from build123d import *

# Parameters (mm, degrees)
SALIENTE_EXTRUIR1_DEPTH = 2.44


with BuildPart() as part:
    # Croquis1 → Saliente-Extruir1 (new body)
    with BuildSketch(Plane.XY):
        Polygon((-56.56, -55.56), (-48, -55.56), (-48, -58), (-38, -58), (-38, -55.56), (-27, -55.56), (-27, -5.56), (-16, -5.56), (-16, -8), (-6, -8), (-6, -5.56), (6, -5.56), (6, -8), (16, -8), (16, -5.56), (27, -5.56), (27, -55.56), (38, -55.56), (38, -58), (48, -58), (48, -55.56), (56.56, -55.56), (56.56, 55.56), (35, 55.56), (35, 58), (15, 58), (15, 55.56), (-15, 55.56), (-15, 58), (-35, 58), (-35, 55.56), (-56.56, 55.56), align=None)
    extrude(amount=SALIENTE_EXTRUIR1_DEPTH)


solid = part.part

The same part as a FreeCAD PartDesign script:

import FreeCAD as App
import Part
import Sketcher
from FreeCAD import Vector


def add_polygon(sketch, points):
    """Adds a closed chain of lines whose ends are joined by coincident constraints."""
    first, n = sketch.GeometryCount, len(points)
    for a, b in zip(points, points[1:] + points[:1]):
        sketch.addGeometry(Part.LineSegment(App.Vector(*a, 0), App.Vector(*b, 0)), False)
    for i in range(n):
        sketch.addConstraint(Sketcher.Constraint("Coincident", first + i, 2, first + (i + 1) % n, 1))

doc = App.newDocument("Part")
body = doc.addObject("PartDesign::Body", "Body")

sketch1 = doc.addObject("Sketcher::SketchObject", "Sketch")
body.addObject(sketch1)
sketch1.AttachmentSupport = (doc.XY_Plane, [""])
sketch1.MapMode = "FlatFace"
add_polygon(sketch1, [(-56.56, -55.56), (-48, -55.56), (-48, -58), (-38, -58), (-38, -55.56), (-27, -55.56), (-27, -5.56), (-16, -5.56), (-16, -8), (-6, -8), (-6, -5.56), (6, -5.56), (6, -8), (16, -8), (16, -5.56), (27, -5.56), (27, -55.56), (38, -55.56), (38, -58), (48, -58), (48, -55.56), (56.56, -55.56), (56.56, 55.56), (35, 55.56), (35, 58), (15, 58), (15, 55.56), (-15, 55.56), (-15, 58), (-35, 58), (-35, 55.56), (-56.56, 55.56)])
sketch1.addConstraint([
    Sketcher.Constraint("Horizontal", 0),
    Sketcher.Constraint("Vertical", 1),
    Sketcher.Constraint("Horizontal", 2),
    Sketcher.Constraint("Vertical", 3),
    Sketcher.Constraint("Horizontal", 4),
    Sketcher.Constraint("Vertical", 5),
    Sketcher.Constraint("Horizontal", 6),
    Sketcher.Constraint("Vertical", 7),
    Sketcher.Constraint("Horizontal", 8),
    Sketcher.Constraint("Vertical", 9),
    Sketcher.Constraint("Horizontal", 10),
    Sketcher.Constraint("Vertical", 11),
    Sketcher.Constraint("Horizontal", 12),
    Sketcher.Constraint("Vertical", 13),
    Sketcher.Constraint("Horizontal", 14),
    Sketcher.Constraint("Vertical", 15),
    Sketcher.Constraint("Horizontal", 16),
    Sketcher.Constraint("Vertical", 17),
    Sketcher.Constraint("Horizontal", 18),
    Sketcher.Constraint("Vertical", 19),
    Sketcher.Constraint("Horizontal", 20),
    Sketcher.Constraint("Vertical", 21),
    Sketcher.Constraint("Horizontal", 22),
    Sketcher.Constraint("Vertical", 23),
    Sketcher.Constraint("Horizontal", 24),
    Sketcher.Constraint("Vertical", 25),
    Sketcher.Constraint("Horizontal", 26),
    Sketcher.Constraint("Vertical", 27),
    Sketcher.Constraint("Horizontal", 28),
    Sketcher.Constraint("Vertical", 29),
    Sketcher.Constraint("Horizontal", 30),
    Sketcher.Constraint("Vertical", 31),
    Sketcher.Constraint("Symmetric", 20, 2, 30, 2, -1, 1),
    Sketcher.Constraint("Symmetric", 8, 2, 11, 2, -2),
    Sketcher.Constraint("Symmetric", 6, 2, 13, 2, -2),
    Sketcher.Constraint("Symmetric", 4, 2, 15, 2, -2),
    Sketcher.Constraint("Symmetric", 2, 2, 17, 2, -2),
    Sketcher.Constraint("Symmetric", 0, 2, 19, 2, -2),
    Sketcher.Constraint("Symmetric", 24, 2, 27, 2, -2),
    Sketcher.Constraint("Symmetric", 22, 2, 29, 2, -2),
    Sketcher.Constraint("Horizontal", 0, 2, 3, 2),
    Sketcher.Constraint("Horizontal", 6, 2, 9, 2),
    Sketcher.Constraint("Horizontal", 22, 2, 25, 2),
    Sketcher.Constraint("Equal", 4, 6),
    Sketcher.Constraint("Equal", 2, 8),
    Sketcher.Constraint("Equal", 3, 7),
    Sketcher.Constraint("Equal", 19, 23),
    Sketcher.Constraint("DistanceX", 2, 1, 2, 2, 10.0),
    Sketcher.Constraint("DistanceX", 4, 1, 4, 2, 11.0),
    Sketcher.Constraint("DistanceX", 10, 1, 10, 2, 12.0),
    Sketcher.Constraint("DistanceX", 24, 2, 24, 1, 20.0),
    Sketcher.Constraint("DistanceX", 26, 2, 26, 1, 30.0),
    Sketcher.Constraint("DistanceY", 5, 1, 5, 2, 50.0),
    Sketcher.Constraint("DistanceY", 1, 2, -1, 1, 58.0),
    Sketcher.Constraint("DistanceX", 0, 1, 0, 2, 8.56),
    Sketcher.Constraint("DistanceY", 1, 2, 1, 1, 2.44),
])
pad1 = doc.addObject("PartDesign::Pad", "Pad")
body.addObject(pad1)
pad1.Profile = sketch1
pad1.Length = 2.44

doc.recompute()
